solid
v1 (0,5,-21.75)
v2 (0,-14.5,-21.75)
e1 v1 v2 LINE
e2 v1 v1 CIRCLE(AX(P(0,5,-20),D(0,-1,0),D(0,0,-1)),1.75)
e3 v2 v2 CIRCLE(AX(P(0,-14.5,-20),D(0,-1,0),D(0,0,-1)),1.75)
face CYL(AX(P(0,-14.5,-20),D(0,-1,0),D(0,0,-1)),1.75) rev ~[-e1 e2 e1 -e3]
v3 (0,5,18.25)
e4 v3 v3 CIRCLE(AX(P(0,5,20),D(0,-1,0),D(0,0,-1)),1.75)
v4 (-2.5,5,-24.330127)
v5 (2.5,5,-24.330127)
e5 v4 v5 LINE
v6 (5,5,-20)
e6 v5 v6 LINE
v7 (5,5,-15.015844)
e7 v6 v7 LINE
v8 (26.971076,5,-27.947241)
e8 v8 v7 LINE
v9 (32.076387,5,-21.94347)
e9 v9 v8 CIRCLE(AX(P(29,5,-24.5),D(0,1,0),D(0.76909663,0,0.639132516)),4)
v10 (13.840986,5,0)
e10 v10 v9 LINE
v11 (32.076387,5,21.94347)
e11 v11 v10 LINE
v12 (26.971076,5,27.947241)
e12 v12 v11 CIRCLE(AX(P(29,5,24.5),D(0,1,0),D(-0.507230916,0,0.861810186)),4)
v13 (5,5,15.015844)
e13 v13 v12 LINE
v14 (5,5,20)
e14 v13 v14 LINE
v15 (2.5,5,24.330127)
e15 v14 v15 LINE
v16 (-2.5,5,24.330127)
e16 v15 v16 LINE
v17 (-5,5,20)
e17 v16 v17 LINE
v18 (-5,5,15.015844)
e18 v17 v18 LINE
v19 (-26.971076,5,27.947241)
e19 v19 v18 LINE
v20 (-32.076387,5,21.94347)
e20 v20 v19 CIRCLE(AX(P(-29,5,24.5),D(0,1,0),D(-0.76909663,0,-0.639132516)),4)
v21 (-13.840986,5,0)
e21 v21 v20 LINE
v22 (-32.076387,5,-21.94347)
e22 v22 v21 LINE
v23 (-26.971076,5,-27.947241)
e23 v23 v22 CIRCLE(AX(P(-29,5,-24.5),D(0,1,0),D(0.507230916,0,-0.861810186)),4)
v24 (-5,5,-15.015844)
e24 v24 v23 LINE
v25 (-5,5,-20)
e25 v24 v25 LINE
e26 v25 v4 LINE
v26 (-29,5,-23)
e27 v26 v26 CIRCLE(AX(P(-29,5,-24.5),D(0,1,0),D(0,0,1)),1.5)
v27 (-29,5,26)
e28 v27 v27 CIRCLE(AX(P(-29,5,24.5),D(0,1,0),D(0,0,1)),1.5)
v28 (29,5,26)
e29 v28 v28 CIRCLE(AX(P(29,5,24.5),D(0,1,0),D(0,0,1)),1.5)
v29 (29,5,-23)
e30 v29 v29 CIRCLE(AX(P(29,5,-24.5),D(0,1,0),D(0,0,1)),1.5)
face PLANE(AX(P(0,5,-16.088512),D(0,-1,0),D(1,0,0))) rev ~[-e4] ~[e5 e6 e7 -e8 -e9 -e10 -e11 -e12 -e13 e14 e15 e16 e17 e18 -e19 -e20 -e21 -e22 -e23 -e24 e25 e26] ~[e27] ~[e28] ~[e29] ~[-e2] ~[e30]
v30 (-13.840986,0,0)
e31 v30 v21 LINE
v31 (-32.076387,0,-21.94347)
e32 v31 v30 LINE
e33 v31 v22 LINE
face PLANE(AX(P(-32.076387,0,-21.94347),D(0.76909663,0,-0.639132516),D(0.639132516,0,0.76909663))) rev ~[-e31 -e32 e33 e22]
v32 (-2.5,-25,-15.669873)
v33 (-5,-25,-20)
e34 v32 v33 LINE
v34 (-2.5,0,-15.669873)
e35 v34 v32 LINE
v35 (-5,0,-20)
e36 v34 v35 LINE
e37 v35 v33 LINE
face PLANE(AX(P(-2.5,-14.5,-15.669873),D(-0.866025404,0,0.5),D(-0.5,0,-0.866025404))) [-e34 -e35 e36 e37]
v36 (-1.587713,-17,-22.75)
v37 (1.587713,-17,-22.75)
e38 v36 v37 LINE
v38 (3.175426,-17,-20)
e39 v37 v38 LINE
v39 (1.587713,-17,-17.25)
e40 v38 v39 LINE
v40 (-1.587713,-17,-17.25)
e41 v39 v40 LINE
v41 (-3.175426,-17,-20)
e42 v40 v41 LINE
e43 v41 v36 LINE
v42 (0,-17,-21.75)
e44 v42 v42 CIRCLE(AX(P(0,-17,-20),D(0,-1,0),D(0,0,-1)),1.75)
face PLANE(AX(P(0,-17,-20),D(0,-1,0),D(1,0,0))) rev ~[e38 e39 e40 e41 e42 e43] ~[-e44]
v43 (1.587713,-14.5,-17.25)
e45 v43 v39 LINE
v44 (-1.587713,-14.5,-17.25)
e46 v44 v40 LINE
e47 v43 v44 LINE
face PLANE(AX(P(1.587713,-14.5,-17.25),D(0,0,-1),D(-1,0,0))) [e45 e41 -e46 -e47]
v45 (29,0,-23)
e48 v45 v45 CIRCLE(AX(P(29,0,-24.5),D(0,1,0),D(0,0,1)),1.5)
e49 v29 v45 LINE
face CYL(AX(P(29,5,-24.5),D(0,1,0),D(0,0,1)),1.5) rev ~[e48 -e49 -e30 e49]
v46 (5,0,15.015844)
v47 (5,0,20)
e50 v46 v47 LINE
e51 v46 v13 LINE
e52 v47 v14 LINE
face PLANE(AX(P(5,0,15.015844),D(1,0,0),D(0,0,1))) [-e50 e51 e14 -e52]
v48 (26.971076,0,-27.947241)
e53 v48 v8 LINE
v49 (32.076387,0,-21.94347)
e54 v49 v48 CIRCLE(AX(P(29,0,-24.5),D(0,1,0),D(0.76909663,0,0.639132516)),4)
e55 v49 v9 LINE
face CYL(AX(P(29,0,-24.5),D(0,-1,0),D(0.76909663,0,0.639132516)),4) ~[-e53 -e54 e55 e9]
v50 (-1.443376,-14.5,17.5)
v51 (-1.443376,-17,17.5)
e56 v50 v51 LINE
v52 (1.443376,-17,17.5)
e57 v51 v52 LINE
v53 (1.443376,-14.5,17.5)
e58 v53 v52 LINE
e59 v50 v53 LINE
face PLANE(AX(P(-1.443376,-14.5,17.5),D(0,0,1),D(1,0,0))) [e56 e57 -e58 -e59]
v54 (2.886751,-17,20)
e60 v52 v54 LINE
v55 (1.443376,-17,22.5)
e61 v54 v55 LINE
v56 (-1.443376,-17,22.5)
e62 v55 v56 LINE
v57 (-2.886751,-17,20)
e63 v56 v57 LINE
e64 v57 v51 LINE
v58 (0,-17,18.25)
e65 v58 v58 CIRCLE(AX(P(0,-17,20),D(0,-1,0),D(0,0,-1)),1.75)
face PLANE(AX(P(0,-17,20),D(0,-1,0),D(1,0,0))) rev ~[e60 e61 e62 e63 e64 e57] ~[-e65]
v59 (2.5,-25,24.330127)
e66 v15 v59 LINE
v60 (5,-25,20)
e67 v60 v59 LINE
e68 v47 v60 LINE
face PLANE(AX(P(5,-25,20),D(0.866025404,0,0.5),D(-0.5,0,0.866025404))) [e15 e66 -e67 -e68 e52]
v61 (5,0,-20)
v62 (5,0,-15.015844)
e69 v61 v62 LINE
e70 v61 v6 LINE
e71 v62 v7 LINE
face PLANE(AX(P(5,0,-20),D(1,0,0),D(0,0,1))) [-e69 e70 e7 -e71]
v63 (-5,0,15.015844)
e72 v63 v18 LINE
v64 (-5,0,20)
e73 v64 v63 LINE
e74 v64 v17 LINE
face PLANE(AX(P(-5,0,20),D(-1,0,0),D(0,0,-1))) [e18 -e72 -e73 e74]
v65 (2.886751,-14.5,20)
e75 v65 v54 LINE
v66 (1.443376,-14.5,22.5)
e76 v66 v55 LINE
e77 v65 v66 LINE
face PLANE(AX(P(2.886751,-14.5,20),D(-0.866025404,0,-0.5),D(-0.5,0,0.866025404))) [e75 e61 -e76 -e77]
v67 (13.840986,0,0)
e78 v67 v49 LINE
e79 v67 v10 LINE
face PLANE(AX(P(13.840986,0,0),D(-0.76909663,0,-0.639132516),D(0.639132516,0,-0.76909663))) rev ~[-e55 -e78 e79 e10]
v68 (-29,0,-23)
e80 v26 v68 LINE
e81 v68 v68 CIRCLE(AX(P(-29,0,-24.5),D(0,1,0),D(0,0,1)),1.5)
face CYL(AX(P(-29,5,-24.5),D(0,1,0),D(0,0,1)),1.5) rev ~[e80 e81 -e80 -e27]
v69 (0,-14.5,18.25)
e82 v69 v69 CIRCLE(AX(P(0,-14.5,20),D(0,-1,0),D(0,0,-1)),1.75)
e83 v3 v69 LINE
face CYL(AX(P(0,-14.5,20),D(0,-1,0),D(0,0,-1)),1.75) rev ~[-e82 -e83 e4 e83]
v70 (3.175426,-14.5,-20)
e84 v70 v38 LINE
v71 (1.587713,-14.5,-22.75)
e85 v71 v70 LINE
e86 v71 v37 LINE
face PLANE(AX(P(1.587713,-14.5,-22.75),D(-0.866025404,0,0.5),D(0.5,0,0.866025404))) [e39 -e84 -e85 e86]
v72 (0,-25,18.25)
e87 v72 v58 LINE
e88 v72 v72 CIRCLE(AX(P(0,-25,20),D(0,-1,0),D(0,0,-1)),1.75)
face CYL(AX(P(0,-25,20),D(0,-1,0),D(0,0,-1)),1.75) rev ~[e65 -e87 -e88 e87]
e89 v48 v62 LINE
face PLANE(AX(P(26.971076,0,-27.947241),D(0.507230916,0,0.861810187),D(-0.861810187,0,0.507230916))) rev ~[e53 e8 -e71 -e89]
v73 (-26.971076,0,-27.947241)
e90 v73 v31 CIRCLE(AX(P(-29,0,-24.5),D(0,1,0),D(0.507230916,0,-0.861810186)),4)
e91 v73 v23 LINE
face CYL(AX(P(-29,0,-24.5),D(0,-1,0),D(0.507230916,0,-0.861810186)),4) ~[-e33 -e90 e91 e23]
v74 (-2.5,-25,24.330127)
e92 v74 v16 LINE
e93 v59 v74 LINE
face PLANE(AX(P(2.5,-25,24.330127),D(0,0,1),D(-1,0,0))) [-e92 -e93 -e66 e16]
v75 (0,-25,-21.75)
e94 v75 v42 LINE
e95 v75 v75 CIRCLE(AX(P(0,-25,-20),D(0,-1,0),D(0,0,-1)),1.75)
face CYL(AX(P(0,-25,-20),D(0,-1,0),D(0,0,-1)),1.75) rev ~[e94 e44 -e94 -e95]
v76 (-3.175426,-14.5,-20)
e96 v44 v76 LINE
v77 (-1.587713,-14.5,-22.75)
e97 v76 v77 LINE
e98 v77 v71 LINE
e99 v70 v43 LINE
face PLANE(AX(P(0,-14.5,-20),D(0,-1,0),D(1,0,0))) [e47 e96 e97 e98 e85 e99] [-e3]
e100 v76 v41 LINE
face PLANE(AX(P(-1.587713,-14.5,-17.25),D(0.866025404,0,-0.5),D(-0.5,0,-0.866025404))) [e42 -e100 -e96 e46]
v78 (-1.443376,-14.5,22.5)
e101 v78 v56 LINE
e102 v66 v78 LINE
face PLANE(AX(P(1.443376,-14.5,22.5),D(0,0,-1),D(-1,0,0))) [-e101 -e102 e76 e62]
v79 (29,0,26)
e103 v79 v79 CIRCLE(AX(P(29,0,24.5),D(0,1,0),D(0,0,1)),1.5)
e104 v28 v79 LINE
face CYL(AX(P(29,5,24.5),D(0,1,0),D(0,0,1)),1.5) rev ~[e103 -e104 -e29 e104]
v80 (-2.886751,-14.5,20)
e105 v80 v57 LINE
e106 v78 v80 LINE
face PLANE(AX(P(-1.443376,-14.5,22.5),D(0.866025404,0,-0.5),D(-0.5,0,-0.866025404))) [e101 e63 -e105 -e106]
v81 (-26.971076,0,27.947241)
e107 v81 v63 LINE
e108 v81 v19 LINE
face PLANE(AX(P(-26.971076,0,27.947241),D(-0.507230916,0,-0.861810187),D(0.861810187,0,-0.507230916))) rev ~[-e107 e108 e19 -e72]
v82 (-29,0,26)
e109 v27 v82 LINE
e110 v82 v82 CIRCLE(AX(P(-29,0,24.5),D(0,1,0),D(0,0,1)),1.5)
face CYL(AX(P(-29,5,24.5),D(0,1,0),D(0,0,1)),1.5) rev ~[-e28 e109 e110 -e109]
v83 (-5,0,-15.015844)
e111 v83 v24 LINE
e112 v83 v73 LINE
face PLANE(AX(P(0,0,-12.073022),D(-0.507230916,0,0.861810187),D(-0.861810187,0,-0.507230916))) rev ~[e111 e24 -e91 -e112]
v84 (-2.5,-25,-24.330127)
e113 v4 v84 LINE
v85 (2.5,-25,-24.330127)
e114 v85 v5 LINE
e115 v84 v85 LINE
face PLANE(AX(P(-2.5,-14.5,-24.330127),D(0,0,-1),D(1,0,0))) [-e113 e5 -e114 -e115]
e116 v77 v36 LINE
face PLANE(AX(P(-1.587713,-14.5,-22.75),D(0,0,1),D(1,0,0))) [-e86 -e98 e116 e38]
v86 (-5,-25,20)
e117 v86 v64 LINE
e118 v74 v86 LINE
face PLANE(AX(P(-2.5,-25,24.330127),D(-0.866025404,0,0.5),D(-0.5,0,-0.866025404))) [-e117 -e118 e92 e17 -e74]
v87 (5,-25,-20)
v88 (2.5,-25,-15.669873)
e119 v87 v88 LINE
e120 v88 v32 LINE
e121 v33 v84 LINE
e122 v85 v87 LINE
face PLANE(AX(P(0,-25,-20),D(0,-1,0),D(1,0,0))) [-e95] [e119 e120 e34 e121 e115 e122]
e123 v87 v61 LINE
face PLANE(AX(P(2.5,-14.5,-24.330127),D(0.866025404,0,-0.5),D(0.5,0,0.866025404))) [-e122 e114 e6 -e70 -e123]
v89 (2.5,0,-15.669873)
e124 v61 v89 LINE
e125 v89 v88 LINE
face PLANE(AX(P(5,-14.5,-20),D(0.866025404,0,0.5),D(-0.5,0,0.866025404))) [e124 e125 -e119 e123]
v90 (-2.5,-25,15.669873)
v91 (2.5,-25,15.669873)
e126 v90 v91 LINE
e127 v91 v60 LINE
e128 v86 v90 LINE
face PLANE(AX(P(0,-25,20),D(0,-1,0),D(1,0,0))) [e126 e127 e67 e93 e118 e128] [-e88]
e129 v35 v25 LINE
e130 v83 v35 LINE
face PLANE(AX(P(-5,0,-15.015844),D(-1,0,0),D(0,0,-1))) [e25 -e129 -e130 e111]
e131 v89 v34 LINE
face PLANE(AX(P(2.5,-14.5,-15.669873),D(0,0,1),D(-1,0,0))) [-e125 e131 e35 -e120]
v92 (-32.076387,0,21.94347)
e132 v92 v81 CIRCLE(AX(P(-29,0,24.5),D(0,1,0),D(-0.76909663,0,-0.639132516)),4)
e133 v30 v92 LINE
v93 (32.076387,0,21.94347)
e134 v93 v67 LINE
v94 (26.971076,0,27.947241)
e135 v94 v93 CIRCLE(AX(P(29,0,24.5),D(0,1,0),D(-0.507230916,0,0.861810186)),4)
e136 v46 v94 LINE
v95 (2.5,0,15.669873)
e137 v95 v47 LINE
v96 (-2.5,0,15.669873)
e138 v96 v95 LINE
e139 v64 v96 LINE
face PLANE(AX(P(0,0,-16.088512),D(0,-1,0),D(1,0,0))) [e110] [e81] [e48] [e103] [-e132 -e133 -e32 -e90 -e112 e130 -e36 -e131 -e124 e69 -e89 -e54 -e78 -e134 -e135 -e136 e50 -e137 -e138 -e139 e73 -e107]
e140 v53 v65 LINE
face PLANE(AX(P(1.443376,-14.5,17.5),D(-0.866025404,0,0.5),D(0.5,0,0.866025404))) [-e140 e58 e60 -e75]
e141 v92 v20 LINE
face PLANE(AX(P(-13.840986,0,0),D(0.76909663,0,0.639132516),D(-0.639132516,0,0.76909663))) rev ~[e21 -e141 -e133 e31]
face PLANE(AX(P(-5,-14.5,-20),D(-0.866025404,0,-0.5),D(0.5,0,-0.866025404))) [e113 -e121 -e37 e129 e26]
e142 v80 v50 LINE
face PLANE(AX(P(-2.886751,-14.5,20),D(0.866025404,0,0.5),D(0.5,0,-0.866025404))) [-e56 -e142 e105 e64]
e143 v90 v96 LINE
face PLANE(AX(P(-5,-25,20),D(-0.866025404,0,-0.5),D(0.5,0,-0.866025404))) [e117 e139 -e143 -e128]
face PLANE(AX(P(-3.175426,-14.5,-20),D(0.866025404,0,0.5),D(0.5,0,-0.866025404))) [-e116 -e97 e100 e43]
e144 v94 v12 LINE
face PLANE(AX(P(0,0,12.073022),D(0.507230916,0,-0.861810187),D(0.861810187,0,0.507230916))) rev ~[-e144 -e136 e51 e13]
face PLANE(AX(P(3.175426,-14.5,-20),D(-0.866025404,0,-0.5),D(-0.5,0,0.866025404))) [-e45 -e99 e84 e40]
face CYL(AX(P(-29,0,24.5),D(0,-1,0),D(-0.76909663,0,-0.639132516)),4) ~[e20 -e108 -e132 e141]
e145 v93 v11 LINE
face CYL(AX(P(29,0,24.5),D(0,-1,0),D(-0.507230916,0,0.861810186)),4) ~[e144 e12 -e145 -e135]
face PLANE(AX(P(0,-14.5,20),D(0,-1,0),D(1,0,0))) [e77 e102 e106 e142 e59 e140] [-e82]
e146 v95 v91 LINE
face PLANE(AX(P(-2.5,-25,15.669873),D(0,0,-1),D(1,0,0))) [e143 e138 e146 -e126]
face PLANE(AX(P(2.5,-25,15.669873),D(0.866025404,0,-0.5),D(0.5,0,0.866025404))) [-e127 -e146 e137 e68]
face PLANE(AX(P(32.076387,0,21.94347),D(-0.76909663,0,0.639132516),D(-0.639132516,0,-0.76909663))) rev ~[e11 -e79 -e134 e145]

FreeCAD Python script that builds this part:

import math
import FreeCAD as App
import Part
import Sketcher

V = App.Vector
Q = App.Units.Quantity

doc = App.newDocument("Part")
body = doc.addObject("PartDesign::Body", "Body")

# Sketch on XZ plane
sketch1 = body.newObject("Sketcher::SketchObject", "Sketch")
sketch1.AttachmentSupport = (doc.getObject("XZ_Plane"), [""])
sketch1.MapMode = "FlatFace"
sketch1.addGeometry(Part.LineSegment(V(-13.840986, 0, 0), V(-32.076387, 21.94347, 0)), False)
sketch1.addGeometry(Part.ArcOfCircle(Part.Circle(V(-29, 24.5, 0), V(0, 0, 1), 4), math.radians(59.520442), math.radians(219.727164)), False)
sketch1.addGeometry(Part.LineSegment(V(-26.971076, 27.947241, 0), V(0, 12.073022, 0)), False)
sketch1.addGeometry(Part.LineSegment(V(0, 12.073022, 0), V(26.971076, 27.947241, 0)), False)
sketch1.addGeometry(Part.ArcOfCircle(Part.Circle(V(29, 24.5, 0), V(0, 0, 1), 4), math.radians(-39.727164), math.radians(120.479558)), False)
sketch1.addGeometry(Part.LineSegment(V(32.076387, 21.94347, 0), V(13.840986, 0, 0)), False)
sketch1.addGeometry(Part.LineSegment(V(13.840986, 0, 0), V(32.076387, -21.94347, 0)), False)
sketch1.addGeometry(Part.ArcOfCircle(Part.Circle(V(29, -24.5, 0), V(0, 0, 1), 4), math.radians(-120.479558), math.radians(39.727164)), False)
sketch1.addGeometry(Part.LineSegment(V(26.971076, -27.947241, 0), V(0, -12.073022, 0)), False)
sketch1.addGeometry(Part.LineSegment(V(0, -12.073022, 0), V(-26.971076, -27.947241, 0)), False)
sketch1.addGeometry(Part.ArcOfCircle(Part.Circle(V(-29, -24.5, 0), V(0, 0, 1), 4), math.radians(140.272836), math.radians(300.479558)), False)
sketch1.addGeometry(Part.LineSegment(V(-32.076387, -21.94347, 0), V(-13.840986, 0, 0)), False)
sketch1.addConstraint(Sketcher.Constraint("Tangent", 0, 2, 1, 2))
sketch1.addConstraint(Sketcher.Constraint("Tangent", 1, 1, 2, 1))
sketch1.addConstraint(Sketcher.Constraint("Coincident", 2, 2, 3, 1))
sketch1.addConstraint(Sketcher.Constraint("Tangent", 3, 2, 4, 2))
sketch1.addConstraint(Sketcher.Constraint("Tangent", 4, 1, 5, 1))
sketch1.addConstraint(Sketcher.Constraint("Coincident", 5, 2, 6, 1))
sketch1.addConstraint(Sketcher.Constraint("Tangent", 6, 2, 7, 2))
sketch1.addConstraint(Sketcher.Constraint("Tangent", 7, 1, 8, 1))
sketch1.addConstraint(Sketcher.Constraint("Coincident", 8, 2, 9, 1))
sketch1.addConstraint(Sketcher.Constraint("Tangent", 9, 2, 10, 2))
sketch1.addConstraint(Sketcher.Constraint("Tangent", 10, 1, 11, 1))
sketch1.addConstraint(Sketcher.Constraint("Coincident", 11, 2, 0, 1))
sketch1.addConstraint(Sketcher.Constraint("Equal", 1, 4))
sketch1.addConstraint(Sketcher.Constraint("Equal", 4, 7))
sketch1.addConstraint(Sketcher.Constraint("Equal", 7, 10))
sketch1.addConstraint(Sketcher.Constraint("Symmetric", 1, 3, 7, 3, -1, 1))
sketch1.addConstraint(Sketcher.Constraint("Symmetric", 4, 3, 10, 3, -1, 1))
sketch1.addConstraint(Sketcher.Constraint("Symmetric", 2, 2, 8, 2, -1, 1))
sketch1.addConstraint(Sketcher.Constraint("Symmetric", 5, 2, 11, 2, -1, 1))
sketch1.addConstraint(Sketcher.Constraint("Symmetric", 1, 3, 4, 3, -2))
sketch1.addConstraint(Sketcher.Constraint("PointOnObject", 2, 2, -2))
sketch1.addConstraint(Sketcher.Constraint("PointOnObject", 5, 2, -1))
sketch1.addConstraint(Sketcher.Constraint("Radius", 1, 4.0))
sketch1.addConstraint(Sketcher.Constraint("DistanceX", 1, 3, -1, 1, 29.0))
sketch1.addConstraint(Sketcher.Constraint("DistanceY", 7, 3, 4, 3, 49.0))
sketch1.addConstraint(Sketcher.Constraint("DistanceX", 5, 2, 4, 1, 18.235401))
sketch1.addConstraint(Sketcher.Constraint("DistanceY", -1, 1, 1, 1, 27.947241))
pad1 = body.newObject("PartDesign::Pad", "Pad")
pad1.Profile = sketch1
pad1.Length = 5
pad1.Reversed = True

# Sketch on XZ plane
sketch2 = body.newObject("Sketcher::SketchObject", "Sketch001")
sketch2.AttachmentSupport = (doc.getObject("XZ_Plane"), [""])
sketch2.MapMode = "FlatFace"
sketch2.AttachmentOffset = App.Placement(V(0, 0, -5), App.Rotation())
sketch2.addGeometry(Part.Circle(V(-29, -24.5, 0), V(0, 0, 1), 1.5), False)
sketch2.addGeometry(Part.Circle(V(29, -24.5, 0), V(0, 0, 1), 1.5), False)
sketch2.addGeometry(Part.Circle(V(29, 24.5, 0), V(0, 0, 1), 1.5), False)
sketch2.addGeometry(Part.Circle(V(-29, 24.5, 0), V(0, 0, 1), 1.5), False)
sketch2.addConstraint(Sketcher.Constraint("Equal", 0, 1))
sketch2.addConstraint(Sketcher.Constraint("Equal", 1, 2))
sketch2.addConstraint(Sketcher.Constraint("Equal", 2, 3))
sketch2.addConstraint(Sketcher.Constraint("Symmetric", 0, 3, 2, 3, -1, 1))
sketch2.addConstraint(Sketcher.Constraint("Symmetric", 1, 3, 3, 3, -1, 1))
sketch2.addConstraint(Sketcher.Constraint("Symmetric", 0, 3, 1, 3, -2))
sketch2.addConstraint(Sketcher.Constraint("Diameter", 0, 3.0))
sketch2.addConstraint(Sketcher.Constraint("DistanceX", 0, 3, -1, 1, 29.0))
sketch2.addConstraint(Sketcher.Constraint("DistanceY", 1, 3, 2, 3, 49.0))
pocket1 = body.newObject("PartDesign::Pocket", "Pocket")
pocket1.Profile = sketch2
pocket1.Length = 5
pocket1.Reversed = True

# Sketch on XZ plane
sketch3 = body.newObject("Sketcher::SketchObject", "Sketch002")
sketch3.AttachmentSupport = (doc.getObject("XZ_Plane"), [""])
sketch3.MapMode = "FlatFace"
sketch3.addGeometry(Part.LineSegment(V(5, -20, 0), V(5, -15.015844, 0)), False)
sketch3.addGeometry(Part.LineSegment(V(5, -15.015844, 0), V(0, -12.073022, 0)), False)
sketch3.addGeometry(Part.LineSegment(V(0, -12.073022, 0), V(-5, -15.015844, 0)), False)
sketch3.addGeometry(Part.LineSegment(V(-5, -15.015844, 0), V(-5, -20, 0)), False)
sketch3.addGeometry(Part.LineSegment(V(-5, -20, 0), V(-2.5, -24.330127, 0)), False)
sketch3.addGeometry(Part.LineSegment(V(-2.5, -24.330127, 0), V(2.5, -24.330127, 0)), False)
sketch3.addGeometry(Part.LineSegment(V(2.5, -24.330127, 0), V(5, -20, 0)), False)
sketch3.addGeometry(Part.Circle(V(0, -20, 0), V(0, 0, 1), 1.75), False)
sketch3.addGeometry(Part.LineSegment(V(-5, 20, 0), V(-5, 15.015844, 0)), False)
sketch3.addGeometry(Part.LineSegment(V(-5, 15.015844, 0), V(0, 12.073022, 0)), False)
sketch3.addGeometry(Part.LineSegment(V(0, 12.073022, 0), V(5, 15.015844, 0)), False)
sketch3.addGeometry(Part.LineSegment(V(5, 15.015844, 0), V(5, 20, 0)), False)
sketch3.addGeometry(Part.LineSegment(V(5, 20, 0), V(2.5, 24.330127, 0)), False)
sketch3.addGeometry(Part.LineSegment(V(2.5, 24.330127, 0), V(-2.5, 24.330127, 0)), False)
sketch3.addGeometry(Part.LineSegment(V(-2.5, 24.330127, 0), V(-5, 20, 0)), False)
sketch3.addGeometry(Part.Circle(V(0, 20, 0), V(0, 0, 1), 1.75), False)
sketch3.addConstraint(Sketcher.Constraint("Coincident", 0, 2, 1, 1))
sketch3.addConstraint(Sketcher.Constraint("Coincident", 1, 2, 2, 1))
sketch3.addConstraint(Sketcher.Constraint("Coincident", 2, 2, 3, 1))
sketch3.addConstraint(Sketcher.Constraint("Coincident", 3, 2, 4, 1))
sketch3.addConstraint(Sketcher.Constraint("Coincident", 4, 2, 5, 1))
sketch3.addConstraint(Sketcher.Constraint("Coincident", 5, 2, 6, 1))
sketch3.addConstraint(Sketcher.Constraint("Coincident", 6, 2, 0, 1))
sketch3.addConstraint(Sketcher.Constraint("Coincident", 8, 2, 9, 1))
sketch3.addConstraint(Sketcher.Constraint("Coincident", 9, 2, 10, 1))
sketch3.addConstraint(Sketcher.Constraint("Coincident", 10, 2, 11, 1))
sketch3.addConstraint(Sketcher.Constraint("Coincident", 11, 2, 12, 1))
sketch3.addConstraint(Sketcher.Constraint("Coincident", 12, 2, 13, 1))
sketch3.addConstraint(Sketcher.Constraint("Coincident", 13, 2, 14, 1))
sketch3.addConstraint(Sketcher.Constraint("Coincident", 14, 2, 8, 1))
sketch3.addConstraint(Sketcher.Constraint("Vertical", 0))
sketch3.addConstraint(Sketcher.Constraint("Vertical", 3))
sketch3.addConstraint(Sketcher.Constraint("Horizontal", 5))
sketch3.addConstraint(Sketcher.Constraint("Vertical", 8))
sketch3.addConstraint(Sketcher.Constraint("Vertical", 11))
sketch3.addConstraint(Sketcher.Constraint("Horizontal", 13))
sketch3.addConstraint(Sketcher.Constraint("Equal", 7, 15))
sketch3.addConstraint(Sketcher.Constraint("Symmetric", 7, 3, 15, 3, -1, 1))
sketch3.addConstraint(Sketcher.Constraint("Symmetric", 0, 2, 8, 2, -1, 1))
sketch3.addConstraint(Sketcher.Constraint("Symmetric", 1, 2, 9, 2, -1, 1))
sketch3.addConstraint(Sketcher.Constraint("Symmetric", 2, 2, 10, 2, -1, 1))
sketch3.addConstraint(Sketcher.Constraint("Symmetric", 4, 2, 12, 2, -1, 1))
sketch3.addConstraint(Sketcher.Constraint("Symmetric", 0, 2, 2, 2, -2))
sketch3.addConstraint(Sketcher.Constraint("PointOnObject", 7, 3, -2))
sketch3.addConstraint(Sketcher.Constraint("PointOnObject", 1, 2, -2))
sketch3.addConstraint(Sketcher.Constraint("Parallel", 4, 12))
sketch3.addConstraint(Sketcher.Constraint("Parallel", 6, 14))
sketch3.addConstraint(Sketcher.Constraint("Horizontal", 7, 3, 3, 2))
sketch3.addConstraint(Sketcher.Constraint("Horizontal", 3, 2, 6, 2))
sketch3.addConstraint(Sketcher.Constraint("Horizontal", 11, 2, 14, 2))
sketch3.addConstraint(Sketcher.Constraint("Vertical", 5, 2, 12, 2))
sketch3.addConstraint(Sketcher.Constraint("Diameter", 7, 3.5))
sketch3.addConstraint(Sketcher.Constraint("DistanceX", 5, 1, 5, 2, 5.0))
sketch3.addConstraint(Sketcher.Constraint("Angle", 4, Q("-60 deg")))
sketch3.addConstraint(Sketcher.Constraint("Distance", 4, 5.0))
sketch3.addConstraint(Sketcher.Constraint("DistanceY", 7, 3, -1, 1, 20.0))
sketch3.addConstraint(Sketcher.Constraint("Distance", 1, 5.801742))
sketch3.addConstraint(Sketcher.Constraint("DistanceY", 0, 1, 0, 2, 4.984156))
pad2 = body.newObject("PartDesign::Pad", "Pad001")
pad2.Profile = sketch3
pad2.Length = 5
pad2.Reversed = True

# Sketch on XZ plane
sketch4 = body.newObject("Sketcher::SketchObject", "Sketch003")
sketch4.AttachmentSupport = (doc.getObject("XZ_Plane"), [""])
sketch4.MapMode = "FlatFace"
sketch4.AttachmentOffset = App.Placement(V(0, 0, 14.5), App.Rotation())
sketch4.addGeometry(Part.LineSegment(V(-2.5, 15.669873, 0), V(2.5, 15.669873, 0)), False)
sketch4.addGeometry(Part.LineSegment(V(2.5, 15.669873, 0), V(5, 20, 0)), False)
sketch4.addGeometry(Part.LineSegment(V(5, 20, 0), V(2.5, 24.330127, 0)), False)
sketch4.addGeometry(Part.LineSegment(V(2.5, 24.330127, 0), V(-2.5, 24.330127, 0)), False)
sketch4.addGeometry(Part.LineSegment(V(-2.5, 24.330127, 0), V(-5, 20, 0)), False)
sketch4.addGeometry(Part.LineSegment(V(-5, 20, 0), V(-2.5, 15.669873, 0)), False)
sketch4.addGeometry(Part.Circle(V(0, 20, 0), V(0, 0, 1), 1.75), False)
sketch4.addGeometry(Part.LineSegment(V(-2.5, -24.330127, 0), V(2.5, -24.330127, 0)), False)
sketch4.addGeometry(Part.LineSegment(V(2.5, -24.330127, 0), V(5, -20, 0)), False)
sketch4.addGeometry(Part.LineSegment(V(5, -20, 0), V(2.5, -15.669873, 0)), False)
sketch4.addGeometry(Part.LineSegment(V(2.5, -15.669873, 0), V(-2.5, -15.669873, 0)), False)
sketch4.addGeometry(Part.LineSegment(V(-2.5, -15.669873, 0), V(-5, -20, 0)), False)
sketch4.addGeometry(Part.LineSegment(V(-5, -20, 0), V(-2.5, -24.330127, 0)), False)
sketch4.addGeometry(Part.Circle(V(0, -20, 0), V(0, 0, 1), 1.75), False)
sketch4.addConstraint(Sketcher.Constraint("Coincident", 0, 2, 1, 1))
sketch4.addConstraint(Sketcher.Constraint("Coincident", 1, 2, 2, 1))
sketch4.addConstraint(Sketcher.Constraint("Coincident", 2, 2, 3, 1))
sketch4.addConstraint(Sketcher.Constraint("Coincident", 3, 2, 4, 1))
sketch4.addConstraint(Sketcher.Constraint("Coincident", 4, 2, 5, 1))
sketch4.addConstraint(Sketcher.Constraint("Coincident", 5, 2, 0, 1))
sketch4.addConstraint(Sketcher.Constraint("Coincident", 7, 2, 8, 1))
sketch4.addConstraint(Sketcher.Constraint("Coincident", 8, 2, 9, 1))
sketch4.addConstraint(Sketcher.Constraint("Coincident", 9, 2, 10, 1))
sketch4.addConstraint(Sketcher.Constraint("Coincident", 10, 2, 11, 1))
sketch4.addConstraint(Sketcher.Constraint("Coincident", 11, 2, 12, 1))
sketch4.addConstraint(Sketcher.Constraint("Coincident", 12, 2, 7, 1))
sketch4.addConstraint(Sketcher.Constraint("Horizontal", 0))
sketch4.addConstraint(Sketcher.Constraint("Horizontal", 3))
sketch4.addConstraint(Sketcher.Constraint("Horizontal", 7))
sketch4.addConstraint(Sketcher.Constraint("Horizontal", 10))
sketch4.addConstraint(Sketcher.Constraint("Equal", 6, 13))
sketch4.addConstraint(Sketcher.Constraint("Symmetric", 6, 3, 13, 3, -1, 1))
sketch4.addConstraint(Sketcher.Constraint("Symmetric", 3, 2, 7, 2, -1, 1))
sketch4.addConstraint(Sketcher.Constraint("Symmetric", 4, 2, 8, 2, -1, 1))
sketch4.addConstraint(Sketcher.Constraint("Symmetric", 5, 2, 9, 2, -1, 1))
sketch4.addConstraint(Sketcher.Constraint("Symmetric", 1, 2, 11, 2, -1, 1))
sketch4.addConstraint(Sketcher.Constraint("Symmetric", 1, 2, 4, 2, -2))
sketch4.addConstraint(Sketcher.Constraint("PointOnObject", 6, 3, -2))
sketch4.addConstraint(Sketcher.Constraint("Parallel", 1, 4))
sketch4.addConstraint(Sketcher.Constraint("Parallel", 2, 5))
sketch4.addConstraint(Sketcher.Constraint("Parallel", 8, 11))
sketch4.addConstraint(Sketcher.Constraint("Parallel", 9, 12))
sketch4.addConstraint(Sketcher.Constraint("Horizontal", 6, 3, 1, 2))
sketch4.addConstraint(Sketcher.Constraint("Vertical", 0, 2, 2, 2))
sketch4.addConstraint(Sketcher.Constraint("Vertical", 3, 2, 5, 2))
sketch4.addConstraint(Sketcher.Constraint("Diameter", 6, 3.5))
sketch4.addConstraint(Sketcher.Constraint("DistanceX", 0, 1, 0, 2, 5.0))
sketch4.addConstraint(Sketcher.Constraint("Angle", 1, Q("60 deg")))
sketch4.addConstraint(Sketcher.Constraint("Distance", 1, 5.0))
sketch4.addConstraint(Sketcher.Constraint("DistanceY", -1, 1, 6, 3, 20.0))
pad3 = body.newObject("PartDesign::Pad", "Pad002")
pad3.Profile = sketch4
pad3.Length = 14.5
pad3.Reversed = True

# Sketch on XZ plane
sketch5 = body.newObject("Sketcher::SketchObject", "Sketch004")
sketch5.AttachmentSupport = (doc.getObject("XZ_Plane"), [""])
sketch5.MapMode = "FlatFace"
sketch5.AttachmentOffset = App.Placement(V(0, 0, 14.5), App.Rotation())
sketch5.addGeometry(Part.LineSegment(V(5, 20, 0), V(2.5, 24.330127, 0)), False)
sketch5.addGeometry(Part.LineSegment(V(2.5, 24.330127, 0), V(-2.5, 24.330127, 0)), False)
sketch5.addGeometry(Part.LineSegment(V(-2.5, 24.330127, 0), V(-5, 20, 0)), False)
sketch5.addGeometry(Part.LineSegment(V(-5, 20, 0), V(-2.5, 15.669873, 0)), False)
sketch5.addGeometry(Part.LineSegment(V(-2.5, 15.669873, 0), V(2.5, 15.669873, 0)), False)
sketch5.addGeometry(Part.LineSegment(V(2.5, 15.669873, 0), V(5, 20, 0)), False)
sketch5.addGeometry(Part.LineSegment(V(1.443376, 22.5, 0), V(2.886751, 20, 0)), False)
sketch5.addGeometry(Part.LineSegment(V(2.886751, 20, 0), V(1.443376, 17.5, 0)), False)
sketch5.addGeometry(Part.LineSegment(V(1.443376, 17.5, 0), V(-1.443376, 17.5, 0)), False)
sketch5.addGeometry(Part.LineSegment(V(-1.443376, 17.5, 0), V(-2.886751, 20, 0)), False)
sketch5.addGeometry(Part.LineSegment(V(-2.886751, 20, 0), V(-1.443376, 22.5, 0)), False)
sketch5.addGeometry(Part.LineSegment(V(-1.443376, 22.5, 0), V(1.443376, 22.5, 0)), False)
sketch5.addGeometry(Part.LineSegment(V(5, -20, 0), V(2.5, -15.669873, 0)), False)
sketch5.addGeometry(Part.LineSegment(V(2.5, -15.669873, 0), V(-2.5, -15.669873, 0)), False)
sketch5.addGeometry(Part.LineSegment(V(-2.5, -15.669873, 0), V(-5, -20, 0)), False)
sketch5.addGeometry(Part.LineSegment(V(-5, -20, 0), V(-2.5, -24.330127, 0)), False)
sketch5.addGeometry(Part.LineSegment(V(-2.5, -24.330127, 0), V(2.5, -24.330127, 0)), False)
sketch5.addGeometry(Part.LineSegment(V(2.5, -24.330127, 0), V(5, -20, 0)), False)
sketch5.addGeometry(Part.LineSegment(V(1.587713, -17.25, 0), V(3.175426, -20, 0)), False)
sketch5.addGeometry(Part.LineSegment(V(3.175426, -20, 0), V(1.587713, -22.75, 0)), False)
sketch5.addGeometry(Part.LineSegment(V(1.587713, -22.75, 0), V(-1.587713, -22.75, 0)), False)
sketch5.addGeometry(Part.LineSegment(V(-1.587713, -22.75, 0), V(-3.175426, -20, 0)), False)
sketch5.addGeometry(Part.LineSegment(V(-3.175426, -20, 0), V(-1.587713, -17.25, 0)), False)
sketch5.addGeometry(Part.LineSegment(V(-1.587713, -17.25, 0), V(1.587713, -17.25, 0)), False)
sketch5.addConstraint(Sketcher.Constraint("Coincident", 0, 2, 1, 1))
sketch5.addConstraint(Sketcher.Constraint("Coincident", 1, 2, 2, 1))
sketch5.addConstraint(Sketcher.Constraint("Coincident", 2, 2, 3, 1))
sketch5.addConstraint(Sketcher.Constraint("Coincident", 3, 2, 4, 1))
sketch5.addConstraint(Sketcher.Constraint("Coincident", 4, 2, 5, 1))
sketch5.addConstraint(Sketcher.Constraint("Coincident", 5, 2, 0, 1))
sketch5.addConstraint(Sketcher.Constraint("Coincident", 6, 2, 7, 1))
sketch5.addConstraint(Sketcher.Constraint("Coincident", 7, 2, 8, 1))
sketch5.addConstraint(Sketcher.Constraint("Coincident", 8, 2, 9, 1))
sketch5.addConstraint(Sketcher.Constraint("Coincident", 9, 2, 10, 1))
sketch5.addConstraint(Sketcher.Constraint("Coincident", 10, 2, 11, 1))
sketch5.addConstraint(Sketcher.Constraint("Coincident", 11, 2, 6, 1))
sketch5.addConstraint(Sketcher.Constraint("Coincident", 12, 2, 13, 1))
sketch5.addConstraint(Sketcher.Constraint("Coincident", 13, 2, 14, 1))
sketch5.addConstraint(Sketcher.Constraint("Coincident", 14, 2, 15, 1))
sketch5.addConstraint(Sketcher.Constraint("Coincident", 15, 2, 16, 1))
sketch5.addConstraint(Sketcher.Constraint("Coincident", 16, 2, 17, 1))
sketch5.addConstraint(Sketcher.Constraint("Coincident", 17, 2, 12, 1))
sketch5.addConstraint(Sketcher.Constraint("Coincident", 18, 2, 19, 1))
sketch5.addConstraint(Sketcher.Constraint("Coincident", 19, 2, 20, 1))
sketch5.addConstraint(Sketcher.Constraint("Coincident", 20, 2, 21, 1))
sketch5.addConstraint(Sketcher.Constraint("Coincident", 21, 2, 22, 1))
sketch5.addConstraint(Sketcher.Constraint("Coincident", 22, 2, 23, 1))
sketch5.addConstraint(Sketcher.Constraint("Coincident", 23, 2, 18, 1))
sketch5.addConstraint(Sketcher.Constraint("Horizontal", 1))
sketch5.addConstraint(Sketcher.Constraint("Horizontal", 4))
sketch5.addConstraint(Sketcher.Constraint("Horizontal", 8))
sketch5.addConstraint(Sketcher.Constraint("Horizontal", 11))
sketch5.addConstraint(Sketcher.Constraint("Horizontal", 13))
sketch5.addConstraint(Sketcher.Constraint("Horizontal", 16))
sketch5.addConstraint(Sketcher.Constraint("Horizontal", 20))
sketch5.addConstraint(Sketcher.Constraint("Horizontal", 23))
sketch5.addConstraint(Sketcher.Constraint("Symmetric", 3, 2, 12, 2, -1, 1))
sketch5.addConstraint(Sketcher.Constraint("Symmetric", 5, 2, 14, 2, -1, 1))
sketch5.addConstraint(Sketcher.Constraint("Symmetric", 0, 2, 15, 2, -1, 1))
sketch5.addConstraint(Sketcher.Constraint("Symmetric", 2, 2, 17, 2, -1, 1))
sketch5.addConstraint(Sketcher.Constraint("Symmetric", 2, 2, 5, 2, -2))
sketch5.addConstraint(Sketcher.Constraint("Symmetric", 6, 2, 9, 2, -2))
sketch5.addConstraint(Sketcher.Constraint("Symmetric", 18, 2, 21, 2, -2))
sketch5.addConstraint(Sketcher.Constraint("Parallel", 0, 3))
sketch5.addConstraint(Sketcher.Constraint("Parallel", 2, 5))
sketch5.addConstraint(Sketcher.Constraint("Parallel", 3, 6))
sketch5.addConstraint(Sketcher.Constraint("Parallel", 5, 7))
sketch5.addConstraint(Sketcher.Constraint("Parallel", 6, 9))
sketch5.addConstraint(Sketcher.Constraint("Parallel", 7, 10))
sketch5.addConstraint(Sketcher.Constraint("Parallel", 10, 14))
sketch5.addConstraint(Sketcher.Constraint("Parallel", 14, 17))
sketch5.addConstraint(Sketcher.Constraint("Parallel", 15, 18))
sketch5.addConstraint(Sketcher.Constraint("Parallel", 17, 19))
sketch5.addConstraint(Sketcher.Constraint("Parallel", 18, 21))
sketch5.addConstraint(Sketcher.Constraint("Parallel", 19, 22))
sketch5.addConstraint(Sketcher.Constraint("Horizontal", 5, 2, 6, 2))
sketch5.addConstraint(Sketcher.Constraint("Horizontal", 17, 2, 18, 2))
sketch5.addConstraint(Sketcher.Constraint("Vertical", 1, 2, 3, 2))
sketch5.addConstraint(Sketcher.Constraint("Vertical", 0, 2, 4, 2))
sketch5.addConstraint(Sketcher.Constraint("Vertical", 8, 2, 10, 2))
sketch5.addConstraint(Sketcher.Constraint("Vertical", 20, 2, 22, 2))
sketch5.addConstraint(Sketcher.Constraint("DistanceX", 1, 2, 1, 1, 5.0))
sketch5.addConstraint(Sketcher.Constraint("Angle", 0, Q("120 deg")))
sketch5.addConstraint(Sketcher.Constraint("Distance", 0, 5.0))
sketch5.addConstraint(Sketcher.Constraint("DistanceY", -1, 1, 2, 2, 20.0))
sketch5.addConstraint(Sketcher.Constraint("DistanceY", 8, 2, 10, 2, 5.0))
sketch5.addConstraint(Sketcher.Constraint("DistanceY", 20, 2, 22, 2, 5.5))
sketch5.addConstraint(Sketcher.Constraint("DistanceX", 8, 2, 8, 1, 2.886751))
sketch5.addConstraint(Sketcher.Constraint("DistanceX", 20, 2, 20, 1, 3.175426))
pad4 = body.newObject("PartDesign::Pad", "Pad003")
pad4.Profile = sketch5
pad4.Length = 2.5

# Sketch on XZ plane
sketch6 = body.newObject("Sketcher::SketchObject", "Sketch005")
sketch6.AttachmentSupport = (doc.getObject("XZ_Plane"), [""])
sketch6.MapMode = "FlatFace"
sketch6.AttachmentOffset = App.Placement(V(0, 0, 25), App.Rotation())
sketch6.addGeometry(Part.LineSegment(V(-2.5, 15.669873, 0), V(2.5, 15.669873, 0)), False)
sketch6.addGeometry(Part.LineSegment(V(2.5, 15.669873, 0), V(5, 20, 0)), False)
sketch6.addGeometry(Part.LineSegment(V(5, 20, 0), V(2.5, 24.330127, 0)), False)
sketch6.addGeometry(Part.LineSegment(V(2.5, 24.330127, 0), V(-2.5, 24.330127, 0)), False)
sketch6.addGeometry(Part.LineSegment(V(-2.5, 24.330127, 0), V(-5, 20, 0)), False)
sketch6.addGeometry(Part.LineSegment(V(-5, 20, 0), V(-2.5, 15.669873, 0)), False)
sketch6.addGeometry(Part.Circle(V(0, 20, 0), V(0, 0, 1), 1.75), False)
sketch6.addGeometry(Part.LineSegment(V(-2.5, -24.330127, 0), V(2.5, -24.330127, 0)), False)
sketch6.addGeometry(Part.LineSegment(V(2.5, -24.330127, 0), V(5, -20, 0)), False)
sketch6.addGeometry(Part.LineSegment(V(5, -20, 0), V(2.5, -15.669873, 0)), False)
sketch6.addGeometry(Part.LineSegment(V(2.5, -15.669873, 0), V(-2.5, -15.669873, 0)), False)
sketch6.addGeometry(Part.LineSegment(V(-2.5, -15.669873, 0), V(-5, -20, 0)), False)
sketch6.addGeometry(Part.LineSegment(V(-5, -20, 0), V(-2.5, -24.330127, 0)), False)
sketch6.addGeometry(Part.Circle(V(0, -20, 0), V(0, 0, 1), 1.75), False)
sketch6.addConstraint(Sketcher.Constraint("Coincident", 0, 2, 1, 1))
sketch6.addConstraint(Sketcher.Constraint("Coincident", 1, 2, 2, 1))
sketch6.addConstraint(Sketcher.Constraint("Coincident", 2, 2, 3, 1))
sketch6.addConstraint(Sketcher.Constraint("Coincident", 3, 2, 4, 1))
sketch6.addConstraint(Sketcher.Constraint("Coincident", 4, 2, 5, 1))
sketch6.addConstraint(Sketcher.Constraint("Coincident", 5, 2, 0, 1))
sketch6.addConstraint(Sketcher.Constraint("Coincident", 7, 2, 8, 1))
sketch6.addConstraint(Sketcher.Constraint("Coincident", 8, 2, 9, 1))
sketch6.addConstraint(Sketcher.Constraint("Coincident", 9, 2, 10, 1))
sketch6.addConstraint(Sketcher.Constraint("Coincident", 10, 2, 11, 1))
sketch6.addConstraint(Sketcher.Constraint("Coincident", 11, 2, 12, 1))
sketch6.addConstraint(Sketcher.Constraint("Coincident", 12, 2, 7, 1))
sketch6.addConstraint(Sketcher.Constraint("Horizontal", 0))
sketch6.addConstraint(Sketcher.Constraint("Horizontal", 3))
sketch6.addConstraint(Sketcher.Constraint("Horizontal", 7))
sketch6.addConstraint(Sketcher.Constraint("Horizontal", 10))
sketch6.addConstraint(Sketcher.Constraint("Equal", 6, 13))
sketch6.addConstraint(Sketcher.Constraint("Symmetric", 6, 3, 13, 3, -1, 1))
sketch6.addConstraint(Sketcher.Constraint("Symmetric", 3, 2, 7, 2, -1, 1))
sketch6.addConstraint(Sketcher.Constraint("Symmetric", 4, 2, 8, 2, -1, 1))
sketch6.addConstraint(Sketcher.Constraint("Symmetric", 5, 2, 9, 2, -1, 1))
sketch6.addConstraint(Sketcher.Constraint("Symmetric", 1, 2, 11, 2, -1, 1))
sketch6.addConstraint(Sketcher.Constraint("Symmetric", 1, 2, 4, 2, -2))
sketch6.addConstraint(Sketcher.Constraint("PointOnObject", 6, 3, -2))
sketch6.addConstraint(Sketcher.Constraint("Parallel", 1, 4))
sketch6.addConstraint(Sketcher.Constraint("Parallel", 2, 5))
sketch6.addConstraint(Sketcher.Constraint("Parallel", 8, 11))
sketch6.addConstraint(Sketcher.Constraint("Parallel", 9, 12))
sketch6.addConstraint(Sketcher.Constraint("Horizontal", 6, 3, 1, 2))
sketch6.addConstraint(Sketcher.Constraint("Vertical", 0, 2, 2, 2))
sketch6.addConstraint(Sketcher.Constraint("Vertical", 3, 2, 5, 2))
sketch6.addConstraint(Sketcher.Constraint("Diameter", 6, 3.5))
sketch6.addConstraint(Sketcher.Constraint("DistanceX", 0, 1, 0, 2, 5.0))
sketch6.addConstraint(Sketcher.Constraint("Angle", 1, Q("60 deg")))
sketch6.addConstraint(Sketcher.Constraint("Distance", 1, 5.0))
sketch6.addConstraint(Sketcher.Constraint("DistanceY", -1, 1, 6, 3, 20.0))
pad5 = body.newObject("PartDesign::Pad", "Pad004")
pad5.Profile = sketch6
pad5.Length = 8
pad5.Reversed = True

doc.recompute()
